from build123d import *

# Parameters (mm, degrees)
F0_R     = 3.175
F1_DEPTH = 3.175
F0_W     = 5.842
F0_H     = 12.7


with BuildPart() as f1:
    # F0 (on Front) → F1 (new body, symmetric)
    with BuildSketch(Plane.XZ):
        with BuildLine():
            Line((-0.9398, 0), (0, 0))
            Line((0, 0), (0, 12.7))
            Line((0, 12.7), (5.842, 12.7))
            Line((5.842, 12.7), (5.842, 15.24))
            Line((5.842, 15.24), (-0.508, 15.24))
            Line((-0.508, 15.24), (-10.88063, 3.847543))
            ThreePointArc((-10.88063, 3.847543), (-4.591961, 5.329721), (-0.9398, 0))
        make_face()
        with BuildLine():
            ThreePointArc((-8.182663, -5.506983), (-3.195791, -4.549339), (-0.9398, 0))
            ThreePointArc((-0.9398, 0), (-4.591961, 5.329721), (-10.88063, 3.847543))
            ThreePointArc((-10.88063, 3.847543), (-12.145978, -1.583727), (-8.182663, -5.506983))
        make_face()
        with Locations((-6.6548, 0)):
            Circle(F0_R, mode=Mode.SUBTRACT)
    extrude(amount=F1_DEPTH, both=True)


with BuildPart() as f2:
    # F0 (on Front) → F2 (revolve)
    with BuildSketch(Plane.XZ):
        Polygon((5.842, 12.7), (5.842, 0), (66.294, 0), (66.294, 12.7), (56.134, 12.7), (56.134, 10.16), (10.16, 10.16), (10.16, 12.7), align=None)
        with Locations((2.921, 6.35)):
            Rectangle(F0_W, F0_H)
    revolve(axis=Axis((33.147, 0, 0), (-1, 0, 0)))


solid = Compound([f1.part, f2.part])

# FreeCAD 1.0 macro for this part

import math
import FreeCAD as App
import Part
import Sketcher
from FreeCAD import Vector
Q = App.Units.Quantity

doc = App.newDocument("Part")
body = doc.addObject("PartDesign::Body", "Body")

# Sketch on XZ plane
sketch1 = body.newObject("Sketcher::SketchObject", "Sketch")
sketch1.AttachmentSupport = (doc.getObject("XZ_Plane"), [""])
sketch1.MapMode = "FlatFace"
sketch1.addGeometry(Part.LineSegment(Vector(-0.9398, 0, 0), Vector(0, 0, 0)), False)
sketch1.addGeometry(Part.LineSegment(Vector(0, 0, 0), Vector(0, 12.7, 0)), False)
sketch1.addGeometry(Part.LineSegment(Vector(0, 12.7, 0), Vector(5.842, 12.7, 0)), False)
sketch1.addGeometry(Part.LineSegment(Vector(5.842, 12.7, 0), Vector(5.842, 15.24, 0)), False)
sketch1.addGeometry(Part.LineSegment(Vector(5.842, 15.24, 0), Vector(-0.508, 15.24, 0)), False)
sketch1.addGeometry(Part.LineSegment(Vector(-0.508, 15.24, 0), Vector(-10.88063, 3.847543, 0)), False)
sketch1.addGeometry(Part.ArcOfCircle(Part.Circle(Vector(-6.6548, 0, 0), Vector(0, 0, 1), 5.715), math.radians(137.682696), math.radians(254.493803)), False)
sketch1.addGeometry(Part.ArcOfCircle(Part.Circle(Vector(-6.6548, -0.000001, 0), Vector(0, 0, 1), 5.715), math.radians(-105.506201), math.radians(0.000005)), False)
sketch1.addGeometry(Part.Circle(Vector(-6.6548, 0, 0), Vector(0, 0, 1), 3.175), False)
sketch1.addConstraint(Sketcher.Constraint("Coincident", 0, 2, 1, 1))
sketch1.addConstraint(Sketcher.Constraint("Coincident", 1, 2, 2, 1))
sketch1.addConstraint(Sketcher.Constraint("Coincident", 2, 2, 3, 1))
sketch1.addConstraint(Sketcher.Constraint("Coincident", 3, 2, 4, 1))
sketch1.addConstraint(Sketcher.Constraint("Coincident", 4, 2, 5, 1))
sketch1.addConstraint(Sketcher.Constraint("Tangent", 5, 2, 6, 1))
sketch1.addConstraint(Sketcher.Constraint("Tangent", 6, 2, 7, 1))
sketch1.addConstraint(Sketcher.Constraint("Coincident", 7, 2, 0, 1))
sketch1.addConstraint(Sketcher.Constraint("Horizontal", 0))
sketch1.addConstraint(Sketcher.Constraint("Vertical", 1))
sketch1.addConstraint(Sketcher.Constraint("Horizontal", 2))
sketch1.addConstraint(Sketcher.Constraint("Vertical", 3))
sketch1.addConstraint(Sketcher.Constraint("Horizontal", 4))
sketch1.addConstraint(Sketcher.Constraint("Coincident", 0, 2, -1, 1))
sketch1.addConstraint(Sketcher.Constraint("Coincident", 8, 3, 6, 3))
sketch1.addConstraint(Sketcher.Constraint("Equal", 6, 7))
sketch1.addConstraint(Sketcher.Constraint("PointOnObject", 6, 3, -1))
sketch1.addConstraint(Sketcher.Constraint("Diameter", 8, Q("0.25 in")))
sketch1.addConstraint(Sketcher.Constraint("DistanceY", 1, 1, 1, 2, Q("0.5 in")))
sketch1.addConstraint(Sketcher.Constraint("DistanceY", 3, 1, 3, 2, Q("0.1 in")))
sketch1.addConstraint(Sketcher.Constraint("Radius", 6, Q("0.225 in")))
sketch1.addConstraint(Sketcher.Constraint("DistanceX", 2, 1, 2, 2, Q("0.23 in")))
sketch1.addConstraint(Sketcher.Constraint("DistanceX", 4, 2, 4, 1, Q("0.25 in")))
sketch1.addConstraint(Sketcher.Constraint("DistanceX", 0, 1, 0, 2, Q("0.037 in")))
sketch1.addConstraint(Sketcher.Constraint("DistanceX", 6, 2, -1, 1, 8.182663))
pad1 = body.newObject("PartDesign::Pad", "Pad")
pad1.Profile = sketch1
pad1.Length = Q("0.25 in")
pad1.Midplane = True
body2 = doc.addObject("PartDesign::Body", "Body001")

# Sketch on XZ plane
sketch2 = body2.newObject("Sketcher::SketchObject", "Sketch001")
sketch2.AttachmentSupport = (doc.getObject("XZ_Plane001"), [""])
sketch2.MapMode = "FlatFace"
sketch2.addGeometry(Part.LineSegment(Vector(66.294, 0, 0), Vector(66.294, 12.7, 0)), False)
sketch2.addGeometry(Part.LineSegment(Vector(66.294, 12.7, 0), Vector(56.134, 12.7, 0)), False)
sketch2.addGeometry(Part.LineSegment(Vector(56.134, 12.7, 0), Vector(56.134, 10.16, 0)), False)
sketch2.addGeometry(Part.LineSegment(Vector(56.134, 10.16, 0), Vector(10.16, 10.16, 0)), False)
sketch2.addGeometry(Part.LineSegment(Vector(10.16, 10.16, 0), Vector(10.16, 12.7, 0)), False)
sketch2.addGeometry(Part.LineSegment(Vector(10.16, 12.7, 0), Vector(0, 12.7, 0)), False)
sketch2.addGeometry(Part.LineSegment(Vector(0, 12.7, 0), Vector(0, 0, 0)), False)
sketch2.addGeometry(Part.LineSegment(Vector(0, 0, 0), Vector(66.294, 0, 0)), False)
sketch2.addConstraint(Sketcher.Constraint("Coincident", 0, 2, 1, 1))
sketch2.addConstraint(Sketcher.Constraint("Coincident", 1, 2, 2, 1))
sketch2.addConstraint(Sketcher.Constraint("Coincident", 2, 2, 3, 1))
sketch2.addConstraint(Sketcher.Constraint("Coincident", 3, 2, 4, 1))
sketch2.addConstraint(Sketcher.Constraint("Coincident", 4, 2, 5, 1))
sketch2.addConstraint(Sketcher.Constraint("Coincident", 5, 2, 6, 1))
sketch2.addConstraint(Sketcher.Constraint("Coincident", 6, 2, 7, 1))
sketch2.addConstraint(Sketcher.Constraint("Coincident", 7, 2, 0, 1))
sketch2.addConstraint(Sketcher.Constraint("Vertical", 0))
sketch2.addConstraint(Sketcher.Constraint("Horizontal", 1))
sketch2.addConstraint(Sketcher.Constraint("Vertical", 2))
sketch2.addConstraint(Sketcher.Constraint("Horizontal", 3))
sketch2.addConstraint(Sketcher.Constraint("Vertical", 4))
sketch2.addConstraint(Sketcher.Constraint("Horizontal", 5))
sketch2.addConstraint(Sketcher.Constraint("Vertical", 6))
sketch2.addConstraint(Sketcher.Constraint("Horizontal", 7))
sketch2.addConstraint(Sketcher.Constraint("Coincident", 6, 2, -1, 1))
sketch2.addConstraint(Sketcher.Constraint("Horizontal", 1, 2, 4, 2))
sketch2.addConstraint(Sketcher.Constraint("Equal", 1, 5))
sketch2.addConstraint(Sketcher.Constraint("DistanceX", 1, 2, 1, 1, Q("0.4 in")))
sketch2.addConstraint(Sketcher.Constraint("DistanceY", 0, 1, 0, 2, Q("0.5 in")))
sketch2.addConstraint(Sketcher.Constraint("DistanceY", 2, 2, 2, 1, Q("0.1 in")))
sketch2.addConstraint(Sketcher.Constraint("DistanceX", 3, 2, 3, 1, Q("1.81 in")))
revolution = body2.newObject("PartDesign::Revolution", "Revolution")
revolution.Profile = sketch2
revolution.ReferenceAxis = (sketch2, ["H_Axis"])
revolution.Angle = 360

doc.recompute()
